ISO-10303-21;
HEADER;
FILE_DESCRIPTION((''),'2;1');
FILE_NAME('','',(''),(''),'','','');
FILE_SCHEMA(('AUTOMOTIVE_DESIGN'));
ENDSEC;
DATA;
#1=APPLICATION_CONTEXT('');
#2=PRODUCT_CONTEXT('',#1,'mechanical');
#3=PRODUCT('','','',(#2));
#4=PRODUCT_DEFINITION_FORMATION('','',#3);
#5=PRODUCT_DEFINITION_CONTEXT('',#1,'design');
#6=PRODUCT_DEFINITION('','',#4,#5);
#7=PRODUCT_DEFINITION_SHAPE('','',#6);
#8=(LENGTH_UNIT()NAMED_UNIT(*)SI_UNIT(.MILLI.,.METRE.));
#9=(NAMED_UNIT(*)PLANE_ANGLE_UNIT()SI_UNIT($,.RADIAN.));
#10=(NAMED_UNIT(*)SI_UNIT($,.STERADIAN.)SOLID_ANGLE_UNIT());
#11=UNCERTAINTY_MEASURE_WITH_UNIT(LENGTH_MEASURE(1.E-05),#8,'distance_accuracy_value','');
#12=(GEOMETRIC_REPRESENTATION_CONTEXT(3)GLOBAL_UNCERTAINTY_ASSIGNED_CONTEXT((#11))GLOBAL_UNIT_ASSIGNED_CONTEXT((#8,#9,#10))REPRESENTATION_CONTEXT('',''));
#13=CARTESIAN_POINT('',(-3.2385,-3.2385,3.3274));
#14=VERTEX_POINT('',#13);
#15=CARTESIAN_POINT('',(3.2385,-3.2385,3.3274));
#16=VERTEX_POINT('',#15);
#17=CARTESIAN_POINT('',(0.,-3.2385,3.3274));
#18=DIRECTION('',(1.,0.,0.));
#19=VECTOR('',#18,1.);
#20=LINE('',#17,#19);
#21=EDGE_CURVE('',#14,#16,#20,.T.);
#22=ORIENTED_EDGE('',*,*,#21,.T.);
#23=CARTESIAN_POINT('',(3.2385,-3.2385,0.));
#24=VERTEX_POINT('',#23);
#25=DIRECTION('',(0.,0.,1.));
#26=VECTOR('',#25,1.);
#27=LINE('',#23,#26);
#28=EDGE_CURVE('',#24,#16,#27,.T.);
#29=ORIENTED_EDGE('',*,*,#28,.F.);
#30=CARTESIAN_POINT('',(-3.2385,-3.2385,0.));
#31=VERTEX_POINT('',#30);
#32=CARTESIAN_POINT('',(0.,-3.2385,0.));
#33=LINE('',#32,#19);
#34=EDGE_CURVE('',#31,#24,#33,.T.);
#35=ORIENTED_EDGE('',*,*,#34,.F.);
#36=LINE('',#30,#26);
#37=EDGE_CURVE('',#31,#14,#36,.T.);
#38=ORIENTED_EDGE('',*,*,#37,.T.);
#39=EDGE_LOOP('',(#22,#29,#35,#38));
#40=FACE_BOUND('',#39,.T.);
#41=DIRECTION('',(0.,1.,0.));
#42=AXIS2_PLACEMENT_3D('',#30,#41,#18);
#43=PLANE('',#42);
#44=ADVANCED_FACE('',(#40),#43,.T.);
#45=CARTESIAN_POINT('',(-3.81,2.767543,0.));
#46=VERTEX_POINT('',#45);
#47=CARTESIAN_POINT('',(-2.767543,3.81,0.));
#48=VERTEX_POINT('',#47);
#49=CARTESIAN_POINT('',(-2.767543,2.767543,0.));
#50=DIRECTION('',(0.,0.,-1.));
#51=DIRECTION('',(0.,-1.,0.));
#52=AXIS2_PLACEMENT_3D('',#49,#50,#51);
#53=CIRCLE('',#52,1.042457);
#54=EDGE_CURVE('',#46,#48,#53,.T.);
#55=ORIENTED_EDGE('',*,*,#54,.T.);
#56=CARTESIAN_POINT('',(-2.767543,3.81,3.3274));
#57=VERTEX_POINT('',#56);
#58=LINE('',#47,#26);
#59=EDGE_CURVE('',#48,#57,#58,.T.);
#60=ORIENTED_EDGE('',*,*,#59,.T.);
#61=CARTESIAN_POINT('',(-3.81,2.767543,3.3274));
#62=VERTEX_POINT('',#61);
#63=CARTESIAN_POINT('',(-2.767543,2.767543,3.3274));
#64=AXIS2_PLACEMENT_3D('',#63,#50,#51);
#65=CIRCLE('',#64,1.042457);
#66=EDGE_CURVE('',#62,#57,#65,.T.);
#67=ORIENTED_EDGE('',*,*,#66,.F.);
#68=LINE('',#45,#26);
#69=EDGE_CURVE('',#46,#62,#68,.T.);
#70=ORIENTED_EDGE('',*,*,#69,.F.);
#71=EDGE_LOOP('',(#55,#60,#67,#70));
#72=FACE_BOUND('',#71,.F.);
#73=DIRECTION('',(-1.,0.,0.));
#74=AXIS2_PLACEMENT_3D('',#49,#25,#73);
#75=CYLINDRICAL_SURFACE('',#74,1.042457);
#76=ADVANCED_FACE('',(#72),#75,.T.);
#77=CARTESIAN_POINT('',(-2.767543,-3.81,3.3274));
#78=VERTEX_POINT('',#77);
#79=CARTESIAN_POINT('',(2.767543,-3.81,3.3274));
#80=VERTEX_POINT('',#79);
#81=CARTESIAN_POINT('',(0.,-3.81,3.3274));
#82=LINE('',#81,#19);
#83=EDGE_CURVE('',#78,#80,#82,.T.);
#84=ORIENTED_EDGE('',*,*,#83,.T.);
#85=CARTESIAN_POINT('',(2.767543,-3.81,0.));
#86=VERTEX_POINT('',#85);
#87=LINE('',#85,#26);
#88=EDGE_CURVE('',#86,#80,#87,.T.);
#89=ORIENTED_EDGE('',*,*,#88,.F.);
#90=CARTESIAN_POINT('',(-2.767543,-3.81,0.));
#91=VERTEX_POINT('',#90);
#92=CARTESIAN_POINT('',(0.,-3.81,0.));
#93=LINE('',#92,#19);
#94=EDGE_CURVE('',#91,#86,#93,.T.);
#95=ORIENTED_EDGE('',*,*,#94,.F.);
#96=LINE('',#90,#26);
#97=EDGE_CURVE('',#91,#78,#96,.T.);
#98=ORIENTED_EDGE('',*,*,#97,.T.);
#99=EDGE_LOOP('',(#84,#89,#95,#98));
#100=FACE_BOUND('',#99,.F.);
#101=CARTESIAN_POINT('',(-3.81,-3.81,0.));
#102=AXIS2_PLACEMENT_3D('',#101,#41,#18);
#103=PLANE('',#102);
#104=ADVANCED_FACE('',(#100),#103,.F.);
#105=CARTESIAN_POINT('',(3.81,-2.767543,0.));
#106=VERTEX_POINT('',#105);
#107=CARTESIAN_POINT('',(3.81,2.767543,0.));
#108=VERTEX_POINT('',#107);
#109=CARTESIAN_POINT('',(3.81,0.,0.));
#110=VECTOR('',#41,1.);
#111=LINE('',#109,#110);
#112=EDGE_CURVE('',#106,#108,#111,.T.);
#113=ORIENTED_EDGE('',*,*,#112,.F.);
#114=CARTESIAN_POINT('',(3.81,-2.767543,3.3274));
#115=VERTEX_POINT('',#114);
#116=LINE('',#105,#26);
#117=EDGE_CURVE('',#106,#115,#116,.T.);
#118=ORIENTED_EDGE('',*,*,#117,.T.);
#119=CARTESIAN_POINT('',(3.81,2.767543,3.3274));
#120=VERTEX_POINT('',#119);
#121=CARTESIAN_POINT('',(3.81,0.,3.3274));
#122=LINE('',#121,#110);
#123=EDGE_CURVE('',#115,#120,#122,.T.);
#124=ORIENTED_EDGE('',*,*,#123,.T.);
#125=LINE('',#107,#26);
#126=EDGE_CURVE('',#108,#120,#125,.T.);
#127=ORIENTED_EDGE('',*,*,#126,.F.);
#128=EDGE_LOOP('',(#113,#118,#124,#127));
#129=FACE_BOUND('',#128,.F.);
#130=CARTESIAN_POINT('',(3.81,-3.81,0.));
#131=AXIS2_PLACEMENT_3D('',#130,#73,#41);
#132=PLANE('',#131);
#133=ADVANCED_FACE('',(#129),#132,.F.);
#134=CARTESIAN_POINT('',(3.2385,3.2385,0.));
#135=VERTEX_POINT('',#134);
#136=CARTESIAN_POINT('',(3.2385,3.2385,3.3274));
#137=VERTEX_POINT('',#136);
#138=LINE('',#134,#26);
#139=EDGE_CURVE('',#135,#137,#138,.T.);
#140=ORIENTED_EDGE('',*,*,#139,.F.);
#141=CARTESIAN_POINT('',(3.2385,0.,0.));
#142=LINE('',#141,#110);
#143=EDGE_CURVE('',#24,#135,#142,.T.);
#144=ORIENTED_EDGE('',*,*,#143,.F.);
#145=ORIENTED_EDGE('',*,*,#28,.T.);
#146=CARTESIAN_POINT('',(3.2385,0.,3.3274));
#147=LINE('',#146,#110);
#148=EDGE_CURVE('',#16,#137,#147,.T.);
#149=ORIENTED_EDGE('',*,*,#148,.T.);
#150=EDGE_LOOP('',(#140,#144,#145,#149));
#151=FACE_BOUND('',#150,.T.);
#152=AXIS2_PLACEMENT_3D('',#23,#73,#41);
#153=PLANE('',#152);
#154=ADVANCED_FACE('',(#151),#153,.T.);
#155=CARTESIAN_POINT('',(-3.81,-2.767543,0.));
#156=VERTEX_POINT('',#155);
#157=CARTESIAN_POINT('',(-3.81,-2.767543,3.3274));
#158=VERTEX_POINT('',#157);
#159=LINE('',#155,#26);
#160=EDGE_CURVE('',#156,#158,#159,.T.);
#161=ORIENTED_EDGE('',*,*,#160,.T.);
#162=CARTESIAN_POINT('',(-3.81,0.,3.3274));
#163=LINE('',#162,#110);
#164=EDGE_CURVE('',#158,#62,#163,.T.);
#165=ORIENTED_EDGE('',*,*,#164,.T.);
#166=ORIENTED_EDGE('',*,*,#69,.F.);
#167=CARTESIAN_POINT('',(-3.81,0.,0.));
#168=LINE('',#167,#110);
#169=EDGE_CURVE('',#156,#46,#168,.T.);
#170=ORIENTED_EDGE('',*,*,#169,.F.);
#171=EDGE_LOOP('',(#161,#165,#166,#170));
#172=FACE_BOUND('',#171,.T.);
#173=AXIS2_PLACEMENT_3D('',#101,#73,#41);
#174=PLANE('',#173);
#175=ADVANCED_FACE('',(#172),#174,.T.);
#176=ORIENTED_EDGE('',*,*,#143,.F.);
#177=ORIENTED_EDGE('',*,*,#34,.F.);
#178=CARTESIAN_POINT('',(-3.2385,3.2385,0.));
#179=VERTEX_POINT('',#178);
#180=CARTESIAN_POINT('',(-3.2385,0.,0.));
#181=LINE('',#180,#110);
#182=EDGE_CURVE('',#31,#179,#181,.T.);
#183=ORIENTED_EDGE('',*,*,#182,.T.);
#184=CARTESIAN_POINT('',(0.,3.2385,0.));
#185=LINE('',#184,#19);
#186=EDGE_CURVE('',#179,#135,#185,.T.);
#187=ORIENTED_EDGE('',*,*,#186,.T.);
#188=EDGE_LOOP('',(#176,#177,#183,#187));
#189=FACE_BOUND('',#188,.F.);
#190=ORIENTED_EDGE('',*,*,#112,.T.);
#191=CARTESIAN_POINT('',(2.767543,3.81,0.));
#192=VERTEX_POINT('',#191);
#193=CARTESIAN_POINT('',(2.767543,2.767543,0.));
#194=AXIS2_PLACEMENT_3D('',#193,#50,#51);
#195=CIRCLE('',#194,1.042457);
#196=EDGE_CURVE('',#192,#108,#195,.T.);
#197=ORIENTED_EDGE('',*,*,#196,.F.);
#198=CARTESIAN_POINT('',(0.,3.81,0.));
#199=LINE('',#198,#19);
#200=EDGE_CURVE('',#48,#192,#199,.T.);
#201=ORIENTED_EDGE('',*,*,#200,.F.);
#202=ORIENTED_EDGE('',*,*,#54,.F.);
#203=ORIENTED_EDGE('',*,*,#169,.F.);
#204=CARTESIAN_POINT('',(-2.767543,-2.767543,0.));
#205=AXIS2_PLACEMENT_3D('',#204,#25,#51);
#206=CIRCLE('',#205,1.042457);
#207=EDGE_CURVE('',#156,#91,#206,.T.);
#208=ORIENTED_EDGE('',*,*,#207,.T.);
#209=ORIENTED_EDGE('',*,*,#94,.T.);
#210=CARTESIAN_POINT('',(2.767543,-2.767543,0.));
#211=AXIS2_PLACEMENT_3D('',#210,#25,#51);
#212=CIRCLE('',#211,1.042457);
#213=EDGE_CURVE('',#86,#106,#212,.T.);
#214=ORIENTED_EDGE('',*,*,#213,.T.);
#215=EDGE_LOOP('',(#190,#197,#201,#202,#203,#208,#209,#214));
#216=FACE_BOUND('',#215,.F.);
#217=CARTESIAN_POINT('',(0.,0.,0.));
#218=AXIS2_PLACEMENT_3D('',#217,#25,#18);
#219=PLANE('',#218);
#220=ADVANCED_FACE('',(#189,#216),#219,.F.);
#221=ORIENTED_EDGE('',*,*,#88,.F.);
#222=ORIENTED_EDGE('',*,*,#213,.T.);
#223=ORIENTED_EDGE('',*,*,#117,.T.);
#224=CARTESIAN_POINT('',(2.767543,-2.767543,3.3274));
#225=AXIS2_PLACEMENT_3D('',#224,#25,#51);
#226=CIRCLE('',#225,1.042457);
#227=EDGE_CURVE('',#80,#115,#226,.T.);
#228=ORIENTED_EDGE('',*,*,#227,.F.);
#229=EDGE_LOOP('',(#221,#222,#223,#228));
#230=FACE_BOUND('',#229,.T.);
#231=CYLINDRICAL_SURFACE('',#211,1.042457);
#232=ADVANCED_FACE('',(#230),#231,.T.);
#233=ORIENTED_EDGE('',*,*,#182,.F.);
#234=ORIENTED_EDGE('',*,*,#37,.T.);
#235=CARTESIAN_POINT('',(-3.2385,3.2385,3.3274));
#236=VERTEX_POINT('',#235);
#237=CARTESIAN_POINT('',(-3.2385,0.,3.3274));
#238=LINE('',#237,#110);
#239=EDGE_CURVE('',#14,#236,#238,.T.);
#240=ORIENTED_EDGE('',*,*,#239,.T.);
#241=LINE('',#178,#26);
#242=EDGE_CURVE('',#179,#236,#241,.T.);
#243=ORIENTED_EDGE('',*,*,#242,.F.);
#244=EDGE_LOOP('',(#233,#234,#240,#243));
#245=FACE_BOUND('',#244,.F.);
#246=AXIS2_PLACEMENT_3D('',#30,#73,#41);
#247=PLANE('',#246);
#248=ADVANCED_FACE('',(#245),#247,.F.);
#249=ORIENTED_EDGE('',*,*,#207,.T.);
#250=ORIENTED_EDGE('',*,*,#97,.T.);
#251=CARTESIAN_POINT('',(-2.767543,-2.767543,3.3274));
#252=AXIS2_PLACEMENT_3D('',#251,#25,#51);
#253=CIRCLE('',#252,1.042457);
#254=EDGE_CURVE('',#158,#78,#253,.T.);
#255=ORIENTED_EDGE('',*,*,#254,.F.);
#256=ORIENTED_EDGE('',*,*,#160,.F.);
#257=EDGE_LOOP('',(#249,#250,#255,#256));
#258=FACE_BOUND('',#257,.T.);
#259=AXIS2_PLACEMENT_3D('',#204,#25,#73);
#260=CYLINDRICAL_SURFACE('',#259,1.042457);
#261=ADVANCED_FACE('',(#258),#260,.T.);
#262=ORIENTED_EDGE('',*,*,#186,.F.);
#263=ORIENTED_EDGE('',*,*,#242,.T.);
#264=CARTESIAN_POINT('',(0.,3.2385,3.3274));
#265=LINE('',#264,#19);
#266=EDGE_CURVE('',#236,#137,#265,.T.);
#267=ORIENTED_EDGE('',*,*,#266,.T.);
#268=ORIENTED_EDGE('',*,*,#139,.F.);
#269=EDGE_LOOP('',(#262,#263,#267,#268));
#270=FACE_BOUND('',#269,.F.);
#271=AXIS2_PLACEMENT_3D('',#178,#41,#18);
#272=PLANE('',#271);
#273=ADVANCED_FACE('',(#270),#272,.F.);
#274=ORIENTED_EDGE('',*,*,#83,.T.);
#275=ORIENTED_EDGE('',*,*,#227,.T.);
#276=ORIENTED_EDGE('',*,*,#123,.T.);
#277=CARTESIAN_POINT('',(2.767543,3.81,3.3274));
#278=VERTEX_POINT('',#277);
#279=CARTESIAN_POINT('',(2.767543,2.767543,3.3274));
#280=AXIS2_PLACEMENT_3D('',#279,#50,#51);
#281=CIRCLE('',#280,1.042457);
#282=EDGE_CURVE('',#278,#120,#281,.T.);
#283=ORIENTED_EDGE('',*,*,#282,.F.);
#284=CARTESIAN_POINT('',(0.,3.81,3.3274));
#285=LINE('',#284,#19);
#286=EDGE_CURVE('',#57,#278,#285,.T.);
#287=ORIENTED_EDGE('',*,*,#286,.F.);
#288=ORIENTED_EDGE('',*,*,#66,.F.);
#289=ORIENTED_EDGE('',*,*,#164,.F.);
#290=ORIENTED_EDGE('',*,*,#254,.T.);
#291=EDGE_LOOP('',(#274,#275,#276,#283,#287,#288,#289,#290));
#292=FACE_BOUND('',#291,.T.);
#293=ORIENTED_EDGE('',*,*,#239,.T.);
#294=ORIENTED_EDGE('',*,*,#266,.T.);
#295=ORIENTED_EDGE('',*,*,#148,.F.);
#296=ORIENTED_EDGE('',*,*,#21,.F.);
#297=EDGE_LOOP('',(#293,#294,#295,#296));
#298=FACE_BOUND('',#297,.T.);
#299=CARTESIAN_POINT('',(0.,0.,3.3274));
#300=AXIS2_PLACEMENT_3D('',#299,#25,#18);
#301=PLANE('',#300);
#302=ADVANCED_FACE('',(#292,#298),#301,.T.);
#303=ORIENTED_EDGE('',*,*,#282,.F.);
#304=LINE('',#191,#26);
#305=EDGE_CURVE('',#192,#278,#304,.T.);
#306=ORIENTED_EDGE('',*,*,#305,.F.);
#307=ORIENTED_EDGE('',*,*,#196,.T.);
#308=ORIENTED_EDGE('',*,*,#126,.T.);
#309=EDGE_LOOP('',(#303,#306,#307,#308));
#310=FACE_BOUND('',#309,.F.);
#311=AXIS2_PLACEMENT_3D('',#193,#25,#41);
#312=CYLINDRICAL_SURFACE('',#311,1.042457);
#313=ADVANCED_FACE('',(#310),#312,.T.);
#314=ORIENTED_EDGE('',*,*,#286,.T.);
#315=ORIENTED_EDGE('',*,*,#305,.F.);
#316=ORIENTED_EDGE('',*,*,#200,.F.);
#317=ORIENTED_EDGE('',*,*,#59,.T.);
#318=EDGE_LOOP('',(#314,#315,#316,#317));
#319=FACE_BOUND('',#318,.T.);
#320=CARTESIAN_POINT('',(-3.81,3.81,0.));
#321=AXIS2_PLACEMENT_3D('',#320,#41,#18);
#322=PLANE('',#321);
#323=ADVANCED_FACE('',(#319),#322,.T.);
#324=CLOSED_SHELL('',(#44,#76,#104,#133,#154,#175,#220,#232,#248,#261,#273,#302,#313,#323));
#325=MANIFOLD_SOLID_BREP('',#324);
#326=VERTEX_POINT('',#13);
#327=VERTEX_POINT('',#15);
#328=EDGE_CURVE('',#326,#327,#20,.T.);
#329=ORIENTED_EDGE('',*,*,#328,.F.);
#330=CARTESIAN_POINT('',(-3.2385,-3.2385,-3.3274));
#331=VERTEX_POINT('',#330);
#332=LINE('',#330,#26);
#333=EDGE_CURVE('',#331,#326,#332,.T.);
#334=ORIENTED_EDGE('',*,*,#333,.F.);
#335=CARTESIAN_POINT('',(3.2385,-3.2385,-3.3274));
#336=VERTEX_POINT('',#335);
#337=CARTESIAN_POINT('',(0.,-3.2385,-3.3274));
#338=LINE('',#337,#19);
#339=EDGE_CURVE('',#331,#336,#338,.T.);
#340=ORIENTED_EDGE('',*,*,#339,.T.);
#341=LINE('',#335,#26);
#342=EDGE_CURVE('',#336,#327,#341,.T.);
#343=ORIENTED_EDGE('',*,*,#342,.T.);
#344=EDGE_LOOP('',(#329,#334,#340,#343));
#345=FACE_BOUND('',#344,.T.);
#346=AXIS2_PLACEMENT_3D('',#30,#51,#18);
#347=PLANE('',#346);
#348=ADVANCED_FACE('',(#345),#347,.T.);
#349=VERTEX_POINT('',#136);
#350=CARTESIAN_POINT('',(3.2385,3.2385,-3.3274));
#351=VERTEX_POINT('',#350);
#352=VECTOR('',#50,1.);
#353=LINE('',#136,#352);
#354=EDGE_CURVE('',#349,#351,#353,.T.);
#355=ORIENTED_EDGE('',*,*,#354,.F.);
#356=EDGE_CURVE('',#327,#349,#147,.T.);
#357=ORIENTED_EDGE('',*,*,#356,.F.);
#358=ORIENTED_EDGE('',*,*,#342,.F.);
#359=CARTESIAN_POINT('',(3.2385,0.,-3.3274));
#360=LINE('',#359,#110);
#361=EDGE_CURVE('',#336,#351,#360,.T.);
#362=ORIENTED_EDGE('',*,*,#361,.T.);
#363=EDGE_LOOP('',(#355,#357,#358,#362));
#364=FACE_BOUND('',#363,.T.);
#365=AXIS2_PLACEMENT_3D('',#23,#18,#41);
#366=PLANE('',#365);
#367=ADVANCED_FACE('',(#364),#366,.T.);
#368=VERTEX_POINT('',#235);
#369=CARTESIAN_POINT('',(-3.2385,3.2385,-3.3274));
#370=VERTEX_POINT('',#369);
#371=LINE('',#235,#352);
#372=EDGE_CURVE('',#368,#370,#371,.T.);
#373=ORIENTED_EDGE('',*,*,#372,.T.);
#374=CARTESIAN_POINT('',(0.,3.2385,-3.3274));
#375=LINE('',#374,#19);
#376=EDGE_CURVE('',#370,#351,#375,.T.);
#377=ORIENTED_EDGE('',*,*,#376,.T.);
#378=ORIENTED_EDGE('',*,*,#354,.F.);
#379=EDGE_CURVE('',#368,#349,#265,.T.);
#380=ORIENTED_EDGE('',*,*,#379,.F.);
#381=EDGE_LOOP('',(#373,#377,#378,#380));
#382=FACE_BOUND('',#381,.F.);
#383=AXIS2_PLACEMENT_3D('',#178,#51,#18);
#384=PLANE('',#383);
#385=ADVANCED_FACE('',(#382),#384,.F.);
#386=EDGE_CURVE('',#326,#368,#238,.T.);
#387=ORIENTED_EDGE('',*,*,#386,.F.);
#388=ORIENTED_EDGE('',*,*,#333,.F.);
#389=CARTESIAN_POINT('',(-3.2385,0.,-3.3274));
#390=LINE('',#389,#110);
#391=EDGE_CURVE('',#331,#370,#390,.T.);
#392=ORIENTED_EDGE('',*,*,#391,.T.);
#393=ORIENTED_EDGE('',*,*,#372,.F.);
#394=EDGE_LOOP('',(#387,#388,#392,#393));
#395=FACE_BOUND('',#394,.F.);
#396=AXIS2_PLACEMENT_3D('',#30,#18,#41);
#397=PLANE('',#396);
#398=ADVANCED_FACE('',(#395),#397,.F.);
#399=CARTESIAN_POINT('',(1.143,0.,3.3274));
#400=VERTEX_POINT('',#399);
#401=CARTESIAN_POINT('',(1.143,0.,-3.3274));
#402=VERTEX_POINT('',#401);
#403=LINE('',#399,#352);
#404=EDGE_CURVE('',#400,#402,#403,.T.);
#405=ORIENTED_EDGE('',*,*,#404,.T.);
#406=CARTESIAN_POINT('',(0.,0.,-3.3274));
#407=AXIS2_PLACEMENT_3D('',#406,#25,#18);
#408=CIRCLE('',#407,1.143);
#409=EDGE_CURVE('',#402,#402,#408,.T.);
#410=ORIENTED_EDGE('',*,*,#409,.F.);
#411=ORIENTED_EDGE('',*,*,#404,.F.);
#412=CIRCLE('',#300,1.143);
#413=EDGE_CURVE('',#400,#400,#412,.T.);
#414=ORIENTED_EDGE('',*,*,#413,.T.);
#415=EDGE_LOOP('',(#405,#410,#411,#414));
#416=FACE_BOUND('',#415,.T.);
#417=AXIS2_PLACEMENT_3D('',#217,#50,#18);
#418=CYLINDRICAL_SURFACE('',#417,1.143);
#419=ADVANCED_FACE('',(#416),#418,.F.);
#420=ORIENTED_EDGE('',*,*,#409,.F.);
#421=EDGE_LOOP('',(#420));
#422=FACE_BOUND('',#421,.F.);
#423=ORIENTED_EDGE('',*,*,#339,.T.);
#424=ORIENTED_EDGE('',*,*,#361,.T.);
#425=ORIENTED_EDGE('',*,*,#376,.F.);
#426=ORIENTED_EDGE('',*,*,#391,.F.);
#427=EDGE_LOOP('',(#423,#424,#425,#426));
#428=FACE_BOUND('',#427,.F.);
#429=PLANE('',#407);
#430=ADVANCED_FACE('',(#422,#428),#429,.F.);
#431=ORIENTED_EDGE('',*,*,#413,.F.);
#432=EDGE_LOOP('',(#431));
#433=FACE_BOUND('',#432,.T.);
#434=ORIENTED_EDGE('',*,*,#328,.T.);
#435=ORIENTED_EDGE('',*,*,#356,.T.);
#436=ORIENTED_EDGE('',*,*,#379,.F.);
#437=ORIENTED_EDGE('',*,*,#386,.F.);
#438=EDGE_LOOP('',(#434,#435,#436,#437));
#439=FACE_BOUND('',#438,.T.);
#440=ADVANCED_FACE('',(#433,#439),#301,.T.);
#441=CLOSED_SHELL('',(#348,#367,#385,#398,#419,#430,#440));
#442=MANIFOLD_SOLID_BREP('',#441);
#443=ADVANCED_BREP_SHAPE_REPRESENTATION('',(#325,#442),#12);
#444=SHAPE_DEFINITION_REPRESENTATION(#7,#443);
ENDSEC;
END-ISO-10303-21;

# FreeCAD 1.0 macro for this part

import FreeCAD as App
import Part
import Sketcher

V = App.Vector
Q = App.Units.Quantity


def edges_at(feature, points):
    """Names of the edges that pass closest to the given points."""
    edges = feature.Shape.Edges
    near = lambda p: min(range(len(edges)), key=lambda i: edges[i].distToShape(Part.Vertex(*p))[0])
    return sorted({f"Edge{near(p) + 1}" for p in points})

doc = App.newDocument("Part")
body = doc.addObject("PartDesign::Body", "Body")

# Sketch on XY plane
sketch1 = body.newObject("Sketcher::SketchObject", "Sketch")
sketch1.AttachmentSupport = (doc.getObject("XY_Plane"), [""])
sketch1.MapMode = "FlatFace"
sketch1.addGeometry(Part.LineSegment(V(-3.2, 3.2, 0), V(-3.2, -3.2, 0)), False)
sketch1.addGeometry(Part.LineSegment(V(-3.2, -3.2, 0), V(3.2, -3.2, 0)), False)
sketch1.addGeometry(Part.LineSegment(V(3.2, -3.2, 0), V(3.2, 3.2, 0)), False)
sketch1.addGeometry(Part.LineSegment(V(3.2, 3.2, 0), V(-3.2, 3.2, 0)), False)
sketch1.addGeometry(Part.Circle(V(0, 0, 0), V(0, 0, 1), 1.1), False)
sketch1.addConstraint(Sketcher.Constraint("Coincident", 0, 2, 1, 1))
sketch1.addConstraint(Sketcher.Constraint("Coincident", 1, 2, 2, 1))
sketch1.addConstraint(Sketcher.Constraint("Coincident", 2, 2, 3, 1))
sketch1.addConstraint(Sketcher.Constraint("Coincident", 3, 2, 0, 1))
sketch1.addConstraint(Sketcher.Constraint("Vertical", 0))
sketch1.addConstraint(Sketcher.Constraint("Horizontal", 1))
sketch1.addConstraint(Sketcher.Constraint("Vertical", 2))
sketch1.addConstraint(Sketcher.Constraint("Horizontal", 3))
sketch1.addConstraint(Sketcher.Constraint("Coincident", 4, 3, -1, 1))
sketch1.addConstraint(Sketcher.Constraint("Symmetric", 0, 2, 2, 2, -1, 1))
sketch1.addConstraint(Sketcher.Constraint("Equal", 3, 0))
sketch1.addConstraint(Sketcher.Constraint("Diameter", 4, Q("0.09 in")))
sketch1.addConstraint(Sketcher.Constraint("DistanceX", 1, 1, 1, 2, Q("0.255 in")))
pad1 = body.newObject("PartDesign::Pad", "Pad")
pad1.Profile = sketch1
pad1.Length = Q("0.262 in")
pad1.Midplane = True
body2 = doc.addObject("PartDesign::Body", "Body001")

# Sketch on XY plane
sketch2 = body2.newObject("Sketcher::SketchObject", "Sketch001")
sketch2.AttachmentSupport = (doc.getObject("XY_Plane001"), [""])
sketch2.MapMode = "FlatFace"
sketch2.addGeometry(Part.LineSegment(V(-4, 4, 0), V(-4, -4, 0)), False)
sketch2.addGeometry(Part.LineSegment(V(-4, -4, 0), V(4, -4, 0)), False)
sketch2.addGeometry(Part.LineSegment(V(4, -4, 0), V(4, 4, 0)), False)
sketch2.addGeometry(Part.LineSegment(V(4, 4, 0), V(-4, 4, 0)), False)
sketch2.addGeometry(Part.LineSegment(V(3, -3, 0), V(-3, -3, 0)), False)
sketch2.addGeometry(Part.LineSegment(V(-3, -3, 0), V(-3, 3, 0)), False)
sketch2.addGeometry(Part.LineSegment(V(-3, 3, 0), V(3, 3, 0)), False)
sketch2.addGeometry(Part.LineSegment(V(3, 3, 0), V(3, -3, 0)), False)
sketch2.addConstraint(Sketcher.Constraint("Coincident", 0, 2, 1, 1))
sketch2.addConstraint(Sketcher.Constraint("Coincident", 1, 2, 2, 1))
sketch2.addConstraint(Sketcher.Constraint("Coincident", 2, 2, 3, 1))
sketch2.addConstraint(Sketcher.Constraint("Coincident", 3, 2, 0, 1))
sketch2.addConstraint(Sketcher.Constraint("Coincident", 4, 2, 5, 1))
sketch2.addConstraint(Sketcher.Constraint("Coincident", 5, 2, 6, 1))
sketch2.addConstraint(Sketcher.Constraint("Coincident", 6, 2, 7, 1))
sketch2.addConstraint(Sketcher.Constraint("Coincident", 7, 2, 4, 1))
sketch2.addConstraint(Sketcher.Constraint("Vertical", 0))
sketch2.addConstraint(Sketcher.Constraint("Horizontal", 1))
sketch2.addConstraint(Sketcher.Constraint("Vertical", 2))
sketch2.addConstraint(Sketcher.Constraint("Horizontal", 3))
sketch2.addConstraint(Sketcher.Constraint("Horizontal", 4))
sketch2.addConstraint(Sketcher.Constraint("Vertical", 5))
sketch2.addConstraint(Sketcher.Constraint("Horizontal", 6))
sketch2.addConstraint(Sketcher.Constraint("Vertical", 7))
sketch2.addConstraint(Sketcher.Constraint("Symmetric", 0, 2, 2, 2, -1, 1))
sketch2.addConstraint(Sketcher.Constraint("Symmetric", 4, 2, 6, 2, -1, 1))
sketch2.addConstraint(Sketcher.Constraint("Equal", 3, 0))
sketch2.addConstraint(Sketcher.Constraint("Equal", 6, 5))
sketch2.addConstraint(Sketcher.Constraint("DistanceX", 1, 1, 1, 2, Q("0.3 in")))
sketch2.addConstraint(Sketcher.Constraint("DistanceX", 4, 2, 4, 1, Q("0.255 in")))
pad2 = body2.newObject("PartDesign::Pad", "Pad001")
pad2.Profile = sketch2
pad2.Length = Q("0.131 in")
doc.recompute()

fillet = body2.newObject("PartDesign::Fillet", "Fillet")
fillet.Base = (pad2, edges_at(pad2, [
    (-3.81, 3.81, 1.664),
    (-3.81, -3.81, 1.664),
    (3.81, -3.81, 1.664),
    (3.81, 3.81, 1.664),
]))
fillet.Radius = 1.042457

doc.recompute()
